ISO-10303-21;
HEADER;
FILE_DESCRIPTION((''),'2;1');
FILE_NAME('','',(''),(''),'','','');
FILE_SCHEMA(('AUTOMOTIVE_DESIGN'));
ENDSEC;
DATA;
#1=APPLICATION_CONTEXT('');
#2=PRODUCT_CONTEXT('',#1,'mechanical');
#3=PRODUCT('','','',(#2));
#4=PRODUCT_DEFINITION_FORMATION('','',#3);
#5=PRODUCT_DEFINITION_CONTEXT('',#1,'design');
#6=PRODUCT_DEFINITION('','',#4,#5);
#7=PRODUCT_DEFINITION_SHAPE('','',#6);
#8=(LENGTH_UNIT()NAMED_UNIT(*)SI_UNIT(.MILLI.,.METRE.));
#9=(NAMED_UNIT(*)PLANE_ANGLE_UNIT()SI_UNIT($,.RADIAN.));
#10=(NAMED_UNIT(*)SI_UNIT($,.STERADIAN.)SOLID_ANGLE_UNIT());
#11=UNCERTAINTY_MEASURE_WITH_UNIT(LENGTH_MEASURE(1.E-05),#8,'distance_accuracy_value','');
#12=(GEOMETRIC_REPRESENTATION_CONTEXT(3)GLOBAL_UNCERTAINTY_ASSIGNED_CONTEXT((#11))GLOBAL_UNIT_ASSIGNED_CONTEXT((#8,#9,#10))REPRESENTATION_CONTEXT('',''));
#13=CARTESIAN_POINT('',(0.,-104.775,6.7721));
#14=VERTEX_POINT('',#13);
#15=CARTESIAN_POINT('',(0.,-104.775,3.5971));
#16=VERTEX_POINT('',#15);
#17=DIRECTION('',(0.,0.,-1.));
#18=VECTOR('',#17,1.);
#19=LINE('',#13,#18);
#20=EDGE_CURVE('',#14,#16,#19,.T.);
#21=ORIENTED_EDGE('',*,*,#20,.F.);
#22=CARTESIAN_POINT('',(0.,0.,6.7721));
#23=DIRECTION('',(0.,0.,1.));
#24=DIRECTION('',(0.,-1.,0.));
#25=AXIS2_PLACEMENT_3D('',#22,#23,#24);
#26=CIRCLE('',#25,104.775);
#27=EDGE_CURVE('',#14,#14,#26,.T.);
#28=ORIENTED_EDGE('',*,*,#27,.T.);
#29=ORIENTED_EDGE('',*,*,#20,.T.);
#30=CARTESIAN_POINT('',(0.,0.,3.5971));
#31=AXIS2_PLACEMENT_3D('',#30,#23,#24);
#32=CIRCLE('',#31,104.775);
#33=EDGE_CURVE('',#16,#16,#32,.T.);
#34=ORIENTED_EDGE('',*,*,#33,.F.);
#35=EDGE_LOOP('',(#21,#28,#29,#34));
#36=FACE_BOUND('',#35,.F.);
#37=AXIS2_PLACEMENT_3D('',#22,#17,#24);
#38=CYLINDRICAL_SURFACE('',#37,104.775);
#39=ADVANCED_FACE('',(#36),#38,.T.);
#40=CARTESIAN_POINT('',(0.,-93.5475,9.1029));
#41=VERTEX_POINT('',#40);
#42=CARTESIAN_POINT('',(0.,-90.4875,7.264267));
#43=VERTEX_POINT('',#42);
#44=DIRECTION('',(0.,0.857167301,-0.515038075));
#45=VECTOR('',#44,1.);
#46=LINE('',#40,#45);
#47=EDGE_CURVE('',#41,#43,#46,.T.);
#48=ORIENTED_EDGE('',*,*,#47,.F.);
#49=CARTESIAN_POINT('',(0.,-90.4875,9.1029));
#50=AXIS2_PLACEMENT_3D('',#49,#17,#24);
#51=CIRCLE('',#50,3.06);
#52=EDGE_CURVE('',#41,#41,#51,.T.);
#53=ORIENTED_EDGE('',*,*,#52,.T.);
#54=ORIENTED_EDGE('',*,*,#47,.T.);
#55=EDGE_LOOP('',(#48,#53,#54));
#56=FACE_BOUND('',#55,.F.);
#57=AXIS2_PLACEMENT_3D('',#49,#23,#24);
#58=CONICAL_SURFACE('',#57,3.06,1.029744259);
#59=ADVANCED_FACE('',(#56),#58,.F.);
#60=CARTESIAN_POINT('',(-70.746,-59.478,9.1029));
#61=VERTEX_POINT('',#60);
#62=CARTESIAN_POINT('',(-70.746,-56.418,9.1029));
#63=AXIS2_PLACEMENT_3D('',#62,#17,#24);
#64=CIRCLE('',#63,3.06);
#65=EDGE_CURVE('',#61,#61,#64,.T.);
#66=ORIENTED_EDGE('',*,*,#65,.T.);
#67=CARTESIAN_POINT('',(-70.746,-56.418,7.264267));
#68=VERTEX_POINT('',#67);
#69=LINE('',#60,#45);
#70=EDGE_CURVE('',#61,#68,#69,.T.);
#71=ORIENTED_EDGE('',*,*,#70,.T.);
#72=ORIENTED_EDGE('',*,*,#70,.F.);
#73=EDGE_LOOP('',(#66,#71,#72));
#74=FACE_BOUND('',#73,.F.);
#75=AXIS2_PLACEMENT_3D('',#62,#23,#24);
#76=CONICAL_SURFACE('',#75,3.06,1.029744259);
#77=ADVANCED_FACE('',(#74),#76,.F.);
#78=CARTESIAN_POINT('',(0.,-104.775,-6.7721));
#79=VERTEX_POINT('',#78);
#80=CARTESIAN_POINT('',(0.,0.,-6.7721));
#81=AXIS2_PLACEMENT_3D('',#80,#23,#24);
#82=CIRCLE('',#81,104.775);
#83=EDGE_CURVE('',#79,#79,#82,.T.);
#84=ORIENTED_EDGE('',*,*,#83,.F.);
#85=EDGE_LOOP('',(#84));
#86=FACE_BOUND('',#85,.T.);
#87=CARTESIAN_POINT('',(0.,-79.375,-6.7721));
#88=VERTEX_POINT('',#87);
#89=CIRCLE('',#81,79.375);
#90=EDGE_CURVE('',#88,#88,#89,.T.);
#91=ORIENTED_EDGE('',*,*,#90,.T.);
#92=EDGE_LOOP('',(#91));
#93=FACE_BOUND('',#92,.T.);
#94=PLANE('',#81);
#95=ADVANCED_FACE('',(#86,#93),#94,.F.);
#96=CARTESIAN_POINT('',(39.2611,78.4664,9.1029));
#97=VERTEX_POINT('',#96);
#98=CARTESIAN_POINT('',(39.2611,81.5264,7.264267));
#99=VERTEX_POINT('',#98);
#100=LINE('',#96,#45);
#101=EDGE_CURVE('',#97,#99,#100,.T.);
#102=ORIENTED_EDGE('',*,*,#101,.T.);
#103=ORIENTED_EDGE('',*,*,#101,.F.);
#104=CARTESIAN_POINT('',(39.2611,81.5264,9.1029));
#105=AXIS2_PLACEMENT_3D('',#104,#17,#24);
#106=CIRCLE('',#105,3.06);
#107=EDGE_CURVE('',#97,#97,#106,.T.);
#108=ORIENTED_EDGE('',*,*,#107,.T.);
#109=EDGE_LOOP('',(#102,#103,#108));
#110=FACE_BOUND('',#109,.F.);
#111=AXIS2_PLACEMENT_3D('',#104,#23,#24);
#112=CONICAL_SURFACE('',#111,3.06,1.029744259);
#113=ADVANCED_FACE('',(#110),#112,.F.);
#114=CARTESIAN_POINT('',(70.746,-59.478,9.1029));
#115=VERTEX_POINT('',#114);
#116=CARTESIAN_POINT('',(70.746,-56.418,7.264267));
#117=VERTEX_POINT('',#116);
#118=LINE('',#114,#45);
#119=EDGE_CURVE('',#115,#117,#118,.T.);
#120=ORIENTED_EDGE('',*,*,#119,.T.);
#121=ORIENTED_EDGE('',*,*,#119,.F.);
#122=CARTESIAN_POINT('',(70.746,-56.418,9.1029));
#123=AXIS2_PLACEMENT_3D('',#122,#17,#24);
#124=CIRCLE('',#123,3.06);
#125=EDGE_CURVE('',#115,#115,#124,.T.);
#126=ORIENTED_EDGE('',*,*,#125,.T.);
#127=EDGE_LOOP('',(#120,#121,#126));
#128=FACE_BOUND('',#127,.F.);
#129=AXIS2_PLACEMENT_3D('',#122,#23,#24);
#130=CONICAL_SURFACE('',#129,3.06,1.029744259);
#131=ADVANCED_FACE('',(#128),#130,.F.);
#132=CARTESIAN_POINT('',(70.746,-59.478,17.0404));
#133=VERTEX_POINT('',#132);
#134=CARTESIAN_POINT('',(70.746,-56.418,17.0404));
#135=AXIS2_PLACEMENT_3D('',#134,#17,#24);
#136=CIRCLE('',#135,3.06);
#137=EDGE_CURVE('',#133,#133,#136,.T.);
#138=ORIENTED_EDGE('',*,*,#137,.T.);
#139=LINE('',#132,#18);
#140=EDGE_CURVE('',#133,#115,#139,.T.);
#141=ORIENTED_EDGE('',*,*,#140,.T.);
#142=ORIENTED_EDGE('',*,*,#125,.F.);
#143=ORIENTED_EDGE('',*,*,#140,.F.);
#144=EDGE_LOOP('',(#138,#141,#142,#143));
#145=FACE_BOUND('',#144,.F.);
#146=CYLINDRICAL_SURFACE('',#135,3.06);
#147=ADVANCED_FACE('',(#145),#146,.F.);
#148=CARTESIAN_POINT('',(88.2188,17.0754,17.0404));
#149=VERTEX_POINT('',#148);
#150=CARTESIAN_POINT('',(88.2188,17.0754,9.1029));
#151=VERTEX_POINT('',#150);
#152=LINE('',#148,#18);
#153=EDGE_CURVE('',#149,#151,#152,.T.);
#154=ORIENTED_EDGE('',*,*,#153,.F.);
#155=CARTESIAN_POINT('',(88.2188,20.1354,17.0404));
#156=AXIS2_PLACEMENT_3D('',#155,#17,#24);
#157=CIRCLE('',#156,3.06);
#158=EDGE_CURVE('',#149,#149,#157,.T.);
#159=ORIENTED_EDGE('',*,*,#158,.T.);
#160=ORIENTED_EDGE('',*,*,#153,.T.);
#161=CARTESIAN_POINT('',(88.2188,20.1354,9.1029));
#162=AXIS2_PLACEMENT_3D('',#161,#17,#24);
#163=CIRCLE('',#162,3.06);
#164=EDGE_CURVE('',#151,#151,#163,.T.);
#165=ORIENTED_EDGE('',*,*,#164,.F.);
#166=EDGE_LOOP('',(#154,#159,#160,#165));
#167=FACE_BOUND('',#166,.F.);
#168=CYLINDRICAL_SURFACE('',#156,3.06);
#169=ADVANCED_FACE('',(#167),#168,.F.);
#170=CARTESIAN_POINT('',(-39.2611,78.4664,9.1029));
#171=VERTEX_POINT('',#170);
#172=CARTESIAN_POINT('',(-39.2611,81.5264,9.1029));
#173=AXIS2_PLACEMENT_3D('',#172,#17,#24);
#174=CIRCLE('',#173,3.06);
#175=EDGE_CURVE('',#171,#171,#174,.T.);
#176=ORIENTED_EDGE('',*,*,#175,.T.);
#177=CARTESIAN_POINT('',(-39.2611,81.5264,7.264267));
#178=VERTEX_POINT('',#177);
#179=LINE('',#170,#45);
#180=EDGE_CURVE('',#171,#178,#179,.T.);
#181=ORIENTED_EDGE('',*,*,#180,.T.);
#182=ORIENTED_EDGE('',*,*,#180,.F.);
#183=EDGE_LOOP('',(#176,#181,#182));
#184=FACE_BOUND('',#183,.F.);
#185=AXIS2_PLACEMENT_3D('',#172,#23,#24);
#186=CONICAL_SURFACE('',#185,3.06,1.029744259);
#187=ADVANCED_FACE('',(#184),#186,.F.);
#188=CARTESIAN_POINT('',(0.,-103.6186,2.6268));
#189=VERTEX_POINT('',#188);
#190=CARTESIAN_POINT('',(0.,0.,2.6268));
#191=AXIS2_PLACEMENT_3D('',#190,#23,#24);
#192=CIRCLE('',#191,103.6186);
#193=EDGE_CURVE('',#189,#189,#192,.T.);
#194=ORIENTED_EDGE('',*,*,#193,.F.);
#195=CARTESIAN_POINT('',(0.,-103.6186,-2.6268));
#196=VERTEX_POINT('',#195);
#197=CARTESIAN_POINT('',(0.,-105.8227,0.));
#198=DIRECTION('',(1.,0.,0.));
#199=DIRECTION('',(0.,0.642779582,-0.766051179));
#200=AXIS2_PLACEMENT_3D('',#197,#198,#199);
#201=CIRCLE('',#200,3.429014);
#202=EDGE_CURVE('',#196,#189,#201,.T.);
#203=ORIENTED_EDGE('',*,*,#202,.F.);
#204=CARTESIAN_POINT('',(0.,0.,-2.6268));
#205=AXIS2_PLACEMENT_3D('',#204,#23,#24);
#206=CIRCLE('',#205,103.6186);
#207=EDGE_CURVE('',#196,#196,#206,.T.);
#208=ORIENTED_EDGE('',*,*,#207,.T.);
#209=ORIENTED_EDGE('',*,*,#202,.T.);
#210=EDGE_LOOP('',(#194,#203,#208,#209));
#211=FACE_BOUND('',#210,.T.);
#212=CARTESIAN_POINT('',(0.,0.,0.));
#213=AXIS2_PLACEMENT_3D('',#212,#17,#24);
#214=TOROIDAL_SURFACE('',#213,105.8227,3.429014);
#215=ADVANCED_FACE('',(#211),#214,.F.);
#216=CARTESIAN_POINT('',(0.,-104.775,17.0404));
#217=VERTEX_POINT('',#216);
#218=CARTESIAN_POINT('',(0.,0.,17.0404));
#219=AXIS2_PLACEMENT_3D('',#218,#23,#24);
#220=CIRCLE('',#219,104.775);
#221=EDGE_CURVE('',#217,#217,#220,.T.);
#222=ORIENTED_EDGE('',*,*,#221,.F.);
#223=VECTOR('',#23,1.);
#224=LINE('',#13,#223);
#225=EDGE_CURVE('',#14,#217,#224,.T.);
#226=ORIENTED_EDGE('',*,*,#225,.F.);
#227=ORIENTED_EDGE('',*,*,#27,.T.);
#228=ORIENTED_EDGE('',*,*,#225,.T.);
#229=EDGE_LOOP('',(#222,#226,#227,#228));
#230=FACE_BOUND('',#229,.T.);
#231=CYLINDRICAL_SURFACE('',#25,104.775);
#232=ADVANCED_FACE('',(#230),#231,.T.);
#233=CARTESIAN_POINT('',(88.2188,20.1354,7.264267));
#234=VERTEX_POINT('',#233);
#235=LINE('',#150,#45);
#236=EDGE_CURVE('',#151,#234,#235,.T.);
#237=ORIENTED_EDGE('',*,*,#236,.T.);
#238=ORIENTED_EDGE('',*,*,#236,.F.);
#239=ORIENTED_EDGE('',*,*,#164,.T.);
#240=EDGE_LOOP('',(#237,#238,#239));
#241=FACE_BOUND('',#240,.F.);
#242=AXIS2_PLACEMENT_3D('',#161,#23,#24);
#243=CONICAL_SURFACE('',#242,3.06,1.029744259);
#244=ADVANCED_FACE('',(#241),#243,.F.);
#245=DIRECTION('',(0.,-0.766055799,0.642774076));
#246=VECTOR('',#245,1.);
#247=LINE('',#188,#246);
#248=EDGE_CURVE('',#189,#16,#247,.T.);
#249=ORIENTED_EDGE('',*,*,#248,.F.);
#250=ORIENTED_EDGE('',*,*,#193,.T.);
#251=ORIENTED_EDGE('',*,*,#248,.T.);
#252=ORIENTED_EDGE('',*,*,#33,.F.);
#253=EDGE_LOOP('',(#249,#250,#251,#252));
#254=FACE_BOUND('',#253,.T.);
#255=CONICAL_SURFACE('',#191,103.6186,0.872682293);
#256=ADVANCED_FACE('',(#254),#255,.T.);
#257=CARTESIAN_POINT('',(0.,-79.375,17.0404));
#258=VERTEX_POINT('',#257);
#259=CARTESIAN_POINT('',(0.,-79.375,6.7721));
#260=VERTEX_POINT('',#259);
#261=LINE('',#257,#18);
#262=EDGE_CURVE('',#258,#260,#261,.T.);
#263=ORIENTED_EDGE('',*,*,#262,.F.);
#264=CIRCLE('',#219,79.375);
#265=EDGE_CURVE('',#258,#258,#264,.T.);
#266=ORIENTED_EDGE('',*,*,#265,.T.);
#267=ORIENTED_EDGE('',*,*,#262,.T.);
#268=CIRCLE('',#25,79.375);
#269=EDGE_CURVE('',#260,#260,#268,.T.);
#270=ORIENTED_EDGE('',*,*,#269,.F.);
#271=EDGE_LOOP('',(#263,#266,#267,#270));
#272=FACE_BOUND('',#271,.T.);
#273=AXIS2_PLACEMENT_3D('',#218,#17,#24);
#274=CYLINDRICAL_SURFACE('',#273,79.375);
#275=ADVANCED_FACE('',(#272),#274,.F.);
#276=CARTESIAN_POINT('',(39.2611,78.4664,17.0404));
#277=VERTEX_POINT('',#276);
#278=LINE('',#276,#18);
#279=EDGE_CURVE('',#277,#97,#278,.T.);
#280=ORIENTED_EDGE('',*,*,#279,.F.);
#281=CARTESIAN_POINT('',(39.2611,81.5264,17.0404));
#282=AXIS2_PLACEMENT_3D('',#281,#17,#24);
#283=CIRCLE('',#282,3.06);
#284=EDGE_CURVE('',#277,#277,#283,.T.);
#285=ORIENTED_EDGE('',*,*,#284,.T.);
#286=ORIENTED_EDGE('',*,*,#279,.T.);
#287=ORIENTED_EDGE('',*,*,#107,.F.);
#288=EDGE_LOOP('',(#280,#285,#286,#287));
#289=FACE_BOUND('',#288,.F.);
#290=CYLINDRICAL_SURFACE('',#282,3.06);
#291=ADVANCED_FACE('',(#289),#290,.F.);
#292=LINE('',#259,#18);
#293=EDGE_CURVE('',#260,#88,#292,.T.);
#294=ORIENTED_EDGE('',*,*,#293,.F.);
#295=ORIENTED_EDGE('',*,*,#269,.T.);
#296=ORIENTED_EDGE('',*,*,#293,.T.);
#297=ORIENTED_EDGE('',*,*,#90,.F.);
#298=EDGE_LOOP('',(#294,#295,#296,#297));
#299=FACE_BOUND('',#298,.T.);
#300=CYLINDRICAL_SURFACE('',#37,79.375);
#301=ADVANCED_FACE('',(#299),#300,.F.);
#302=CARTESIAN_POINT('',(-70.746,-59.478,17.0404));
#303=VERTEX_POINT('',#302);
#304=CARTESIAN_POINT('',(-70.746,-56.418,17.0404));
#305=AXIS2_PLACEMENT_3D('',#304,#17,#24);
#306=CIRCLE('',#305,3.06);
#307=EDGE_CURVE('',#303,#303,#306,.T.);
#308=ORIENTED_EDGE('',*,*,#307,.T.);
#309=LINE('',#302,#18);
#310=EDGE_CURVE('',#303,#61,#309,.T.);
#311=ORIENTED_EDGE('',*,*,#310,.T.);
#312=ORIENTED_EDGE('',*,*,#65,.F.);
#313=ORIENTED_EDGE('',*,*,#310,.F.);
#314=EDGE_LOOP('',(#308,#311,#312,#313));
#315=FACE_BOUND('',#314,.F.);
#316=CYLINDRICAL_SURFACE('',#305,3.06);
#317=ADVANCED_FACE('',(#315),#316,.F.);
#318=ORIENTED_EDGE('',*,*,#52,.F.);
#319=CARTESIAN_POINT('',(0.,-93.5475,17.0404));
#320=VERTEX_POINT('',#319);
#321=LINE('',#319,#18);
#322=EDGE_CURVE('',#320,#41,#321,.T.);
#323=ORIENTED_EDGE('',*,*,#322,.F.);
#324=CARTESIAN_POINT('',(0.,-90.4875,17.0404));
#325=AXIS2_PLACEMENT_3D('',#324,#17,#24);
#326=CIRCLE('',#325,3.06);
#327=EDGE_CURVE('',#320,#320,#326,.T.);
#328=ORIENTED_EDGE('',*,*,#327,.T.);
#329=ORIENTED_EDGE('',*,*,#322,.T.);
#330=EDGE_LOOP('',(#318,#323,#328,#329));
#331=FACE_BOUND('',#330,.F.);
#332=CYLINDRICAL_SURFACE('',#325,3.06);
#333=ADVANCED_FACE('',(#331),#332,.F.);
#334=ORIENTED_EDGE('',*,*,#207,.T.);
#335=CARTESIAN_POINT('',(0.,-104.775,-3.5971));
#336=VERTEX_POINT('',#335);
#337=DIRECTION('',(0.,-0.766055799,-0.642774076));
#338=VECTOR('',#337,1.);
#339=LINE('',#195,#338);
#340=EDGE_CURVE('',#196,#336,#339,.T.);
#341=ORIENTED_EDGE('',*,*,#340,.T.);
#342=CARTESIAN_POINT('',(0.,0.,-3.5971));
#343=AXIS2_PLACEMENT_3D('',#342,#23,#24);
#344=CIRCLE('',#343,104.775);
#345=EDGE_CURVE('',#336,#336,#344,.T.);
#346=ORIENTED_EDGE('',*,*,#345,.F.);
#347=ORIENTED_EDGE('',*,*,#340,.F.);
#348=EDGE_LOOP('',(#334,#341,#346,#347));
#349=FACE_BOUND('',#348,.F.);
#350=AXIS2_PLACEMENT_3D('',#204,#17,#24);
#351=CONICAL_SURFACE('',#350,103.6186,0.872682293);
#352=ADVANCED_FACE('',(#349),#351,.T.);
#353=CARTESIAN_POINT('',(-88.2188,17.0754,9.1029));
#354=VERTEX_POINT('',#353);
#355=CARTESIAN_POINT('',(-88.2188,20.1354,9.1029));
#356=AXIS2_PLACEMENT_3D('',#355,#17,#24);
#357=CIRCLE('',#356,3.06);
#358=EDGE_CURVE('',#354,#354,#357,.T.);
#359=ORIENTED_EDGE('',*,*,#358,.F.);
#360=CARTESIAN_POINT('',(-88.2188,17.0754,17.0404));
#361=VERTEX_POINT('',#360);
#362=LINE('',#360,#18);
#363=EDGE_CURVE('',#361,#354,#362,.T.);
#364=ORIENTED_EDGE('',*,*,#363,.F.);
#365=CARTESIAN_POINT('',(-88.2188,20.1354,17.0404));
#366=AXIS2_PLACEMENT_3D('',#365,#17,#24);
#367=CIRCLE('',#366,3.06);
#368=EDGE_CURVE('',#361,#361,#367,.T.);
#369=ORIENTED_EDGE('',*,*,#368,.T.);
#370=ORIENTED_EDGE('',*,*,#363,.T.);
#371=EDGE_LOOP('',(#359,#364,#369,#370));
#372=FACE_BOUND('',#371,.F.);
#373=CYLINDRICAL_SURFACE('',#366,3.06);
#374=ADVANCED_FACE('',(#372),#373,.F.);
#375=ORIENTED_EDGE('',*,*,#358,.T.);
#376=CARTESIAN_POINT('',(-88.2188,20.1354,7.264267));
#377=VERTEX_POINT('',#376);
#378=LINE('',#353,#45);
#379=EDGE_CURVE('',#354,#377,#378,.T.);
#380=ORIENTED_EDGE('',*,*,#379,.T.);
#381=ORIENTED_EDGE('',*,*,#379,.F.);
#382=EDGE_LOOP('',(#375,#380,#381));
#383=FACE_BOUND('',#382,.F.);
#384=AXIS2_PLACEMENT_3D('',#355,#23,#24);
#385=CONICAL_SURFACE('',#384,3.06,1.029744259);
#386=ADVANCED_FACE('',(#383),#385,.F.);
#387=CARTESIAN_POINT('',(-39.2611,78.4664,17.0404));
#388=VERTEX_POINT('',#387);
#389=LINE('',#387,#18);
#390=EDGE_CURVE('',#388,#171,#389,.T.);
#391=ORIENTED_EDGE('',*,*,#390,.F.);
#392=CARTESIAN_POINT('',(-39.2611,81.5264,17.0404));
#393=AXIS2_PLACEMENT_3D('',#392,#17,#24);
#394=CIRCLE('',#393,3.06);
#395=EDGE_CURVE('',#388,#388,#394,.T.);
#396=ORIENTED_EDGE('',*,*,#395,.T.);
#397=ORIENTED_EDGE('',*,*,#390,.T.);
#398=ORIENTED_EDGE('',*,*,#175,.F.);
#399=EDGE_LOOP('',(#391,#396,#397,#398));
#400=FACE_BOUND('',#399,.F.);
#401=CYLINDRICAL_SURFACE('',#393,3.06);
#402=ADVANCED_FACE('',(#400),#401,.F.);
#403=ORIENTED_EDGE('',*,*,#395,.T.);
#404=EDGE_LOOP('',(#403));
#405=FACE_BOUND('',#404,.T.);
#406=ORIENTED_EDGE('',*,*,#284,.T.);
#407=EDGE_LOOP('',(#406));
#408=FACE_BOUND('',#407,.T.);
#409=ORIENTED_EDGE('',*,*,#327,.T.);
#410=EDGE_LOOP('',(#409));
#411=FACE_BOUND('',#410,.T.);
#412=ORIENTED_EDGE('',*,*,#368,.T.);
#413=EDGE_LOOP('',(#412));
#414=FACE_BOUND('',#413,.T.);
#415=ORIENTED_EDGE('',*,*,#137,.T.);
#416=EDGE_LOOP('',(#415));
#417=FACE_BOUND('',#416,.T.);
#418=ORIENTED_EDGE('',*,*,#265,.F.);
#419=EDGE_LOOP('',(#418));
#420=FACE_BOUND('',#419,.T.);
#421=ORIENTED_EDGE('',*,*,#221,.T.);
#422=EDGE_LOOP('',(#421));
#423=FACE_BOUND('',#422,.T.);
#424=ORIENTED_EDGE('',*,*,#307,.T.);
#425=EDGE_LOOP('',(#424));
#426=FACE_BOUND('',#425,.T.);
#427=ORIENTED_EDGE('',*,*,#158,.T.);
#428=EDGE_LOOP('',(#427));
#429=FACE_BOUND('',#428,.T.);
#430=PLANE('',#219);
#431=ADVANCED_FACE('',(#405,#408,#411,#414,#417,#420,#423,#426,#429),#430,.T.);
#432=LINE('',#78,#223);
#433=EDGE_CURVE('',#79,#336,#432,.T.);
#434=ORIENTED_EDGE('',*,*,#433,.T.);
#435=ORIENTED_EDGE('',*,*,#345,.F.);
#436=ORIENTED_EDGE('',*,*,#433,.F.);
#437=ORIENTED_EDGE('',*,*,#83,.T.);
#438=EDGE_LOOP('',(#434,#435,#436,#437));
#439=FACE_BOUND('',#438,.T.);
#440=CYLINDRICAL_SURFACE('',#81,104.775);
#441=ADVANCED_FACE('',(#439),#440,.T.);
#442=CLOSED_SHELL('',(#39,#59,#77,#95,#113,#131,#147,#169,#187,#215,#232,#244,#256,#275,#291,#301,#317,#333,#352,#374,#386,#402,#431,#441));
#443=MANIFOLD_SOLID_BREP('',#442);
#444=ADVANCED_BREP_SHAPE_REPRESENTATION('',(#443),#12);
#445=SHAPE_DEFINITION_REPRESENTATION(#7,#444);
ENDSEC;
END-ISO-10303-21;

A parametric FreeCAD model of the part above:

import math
import FreeCAD as App
import Part
import Sketcher
Q = App.Units.Quantity

doc = App.newDocument("Part")
body = doc.addObject("PartDesign::Body", "Body")

# Sketch on YZ plane
sketch1 = doc.addObject("Sketcher::SketchObject", "Sketch")
body.addObject(sketch1)
sketch1.AttachmentSupport = (doc.YZ_Plane, [""])
sketch1.MapMode = "FlatFace"
sketch1.addGeometry([
    Part.LineSegment(App.Vector(-104.8, 17, 0), App.Vector(-104.8, 3.6, 0)),  # 0
    Part.LineSegment(App.Vector(-104.8, 3.6, 0), App.Vector(-103.6, 2.6, 0)),  # 1
    Part.ArcOfCircle(Part.Circle(App.Vector(-105.8, 0, 0), App.Vector(0, 0, 1), 3.4), math.radians(-50), math.radians(50)),  # 2
    Part.LineSegment(App.Vector(-103.6, -2.6, 0), App.Vector(-104.8, -3.6, 0)),  # 3
    Part.LineSegment(App.Vector(-104.8, -3.6, 0), App.Vector(-104.8, -6.8, 0)),  # 4
    Part.LineSegment(App.Vector(-104.8, -6.8, 0), App.Vector(-79.4, -6.8, 0)),  # 5
    Part.LineSegment(App.Vector(-79.4, -6.8, 0), App.Vector(-79.4, 17, 0)),  # 6
    Part.LineSegment(App.Vector(-79.4, 17, 0), App.Vector(-104.8, 17, 0)),  # 7
], False)
sketch1.addConstraint([
    Sketcher.Constraint("Coincident", 0, 2, 1, 1),
    Sketcher.Constraint("Tangent", 1, 2, 2, 2),
    Sketcher.Constraint("Tangent", 2, 1, 3, 1),
    Sketcher.Constraint("Coincident", 3, 2, 4, 1),
    Sketcher.Constraint("Coincident", 4, 2, 5, 1),
    Sketcher.Constraint("Coincident", 5, 2, 6, 1),
    Sketcher.Constraint("Coincident", 6, 2, 7, 1),
    Sketcher.Constraint("Coincident", 7, 2, 0, 1),
    Sketcher.Constraint("Vertical", 0),
    Sketcher.Constraint("Vertical", 4),
    Sketcher.Constraint("Horizontal", 5),
    Sketcher.Constraint("Vertical", 6),
    Sketcher.Constraint("Horizontal", 7),
    Sketcher.Constraint("Symmetric", 1, 2, 2, 1, -1),
    Sketcher.Constraint("Vertical", 0, 2, 3, 2),
    Sketcher.Constraint("DistanceX", 5, 1, 5, 2, Q("1 in")),
    Sketcher.Constraint("Radius", 2, Q("0.135 in")),
    Sketcher.Constraint("DistanceY", 4, 2, 4, 1, Q("0.125 in")),
    Sketcher.Constraint("DistanceY", 6, 1, 6, 2, Q("0.9375 in")),
    Sketcher.Constraint("Angle", 1, Q("-39.999 deg")),
    Sketcher.Constraint("DistanceX", 0, 2, -1, 1, Q("4.125 in")),
    Sketcher.Constraint("DistanceY", 0, 2, 0, 1, Q("13.4433 mm")),
])
revolution = doc.addObject("PartDesign::Revolution", "Revolution")
body.addObject(revolution)
revolution.Profile = sketch1
revolution.ReferenceAxis = (sketch1, ["V_Axis"])
revolution.Angle = 360

# Sketch on XY plane
sketch2 = doc.addObject("Sketcher::SketchObject", "Sketch001")
body.addObject(sketch2)
sketch2.AttachmentSupport = (doc.XY_Plane, [""])
sketch2.MapMode = "FlatFace"
sketch2.AttachmentOffset = App.Placement(App.Vector(0, 0, 17.0404), App.Rotation())
sketch2.addGeometry([
    Part.Circle(App.Vector(0, -90.5, 0), App.Vector(0, 0, 1), 3.1),  # 0
    Part.Circle(App.Vector(70.7, -56.4, 0), App.Vector(0, 0, 1), 3.1),  # 1
    Part.Circle(App.Vector(88.2, 20.1, 0), App.Vector(0, 0, 1), 3.1),  # 2
    Part.Circle(App.Vector(39.3, 81.5, 0), App.Vector(0, 0, 1), 3.1),  # 3
    Part.Circle(App.Vector(-39.3, 81.5, 0), App.Vector(0, 0, 1), 3.1),  # 4
    Part.Circle(App.Vector(-88.2, 20.1, 0), App.Vector(0, 0, 1), 3.1),  # 5
    Part.Circle(App.Vector(-70.7, -56.4, 0), App.Vector(0, 0, 1), 3.1),  # 6
], False)
sketch2.addConstraint([
    Sketcher.Constraint("Equal", 0, 1),
    Sketcher.Constraint("Equal", 1, 2),
    Sketcher.Constraint("Equal", 2, 3),
    Sketcher.Constraint("Equal", 3, 4),
    Sketcher.Constraint("Equal", 4, 5),
    Sketcher.Constraint("Equal", 5, 6),
    Sketcher.Constraint("Symmetric", 3, 3, 4, 3, -2),
    Sketcher.Constraint("Symmetric", 2, 3, 5, 3, -2),
    Sketcher.Constraint("Symmetric", 1, 3, 6, 3, -2),
    Sketcher.Constraint("PointOnObject", 0, 3, -2),
    Sketcher.Constraint("Diameter", 0, Q("6.12 mm")),
    Sketcher.Constraint("DistanceY", 0, 3, -1, 1, Q("3.5625 in")),
    Sketcher.Constraint("DistanceX", 4, 3, 1, 3, Q("4.331 in")),
    Sketcher.Constraint("DistanceY", -1, 1, 3, 3, Q("3.2097 in")),
    Sketcher.Constraint("DistanceX", 1, 3, 2, 3, Q("0.6879 in")),
    Sketcher.Constraint("DistanceX", -1, 1, 1, 3, Q("70.746 mm")),
    Sketcher.Constraint("DistanceY", 1, 3, -1, 1, Q("56.418 mm")),
    Sketcher.Constraint("DistanceY", -1, 1, 2, 3, Q("20.1354 mm")),
])
doc.recompute()
hole = doc.addObject("PartDesign::Hole", "Hole")
body.addObject(hole)
hole.Profile = sketch2
hole.ThreadType = "None"
hole.Diameter = 6.12
hole.DepthType = "Dimension"
hole.Depth = Q("0.3125 in")
hole.DrillPoint = "Angled"
hole.DrillPointAngle = 118

doc.recompute()
